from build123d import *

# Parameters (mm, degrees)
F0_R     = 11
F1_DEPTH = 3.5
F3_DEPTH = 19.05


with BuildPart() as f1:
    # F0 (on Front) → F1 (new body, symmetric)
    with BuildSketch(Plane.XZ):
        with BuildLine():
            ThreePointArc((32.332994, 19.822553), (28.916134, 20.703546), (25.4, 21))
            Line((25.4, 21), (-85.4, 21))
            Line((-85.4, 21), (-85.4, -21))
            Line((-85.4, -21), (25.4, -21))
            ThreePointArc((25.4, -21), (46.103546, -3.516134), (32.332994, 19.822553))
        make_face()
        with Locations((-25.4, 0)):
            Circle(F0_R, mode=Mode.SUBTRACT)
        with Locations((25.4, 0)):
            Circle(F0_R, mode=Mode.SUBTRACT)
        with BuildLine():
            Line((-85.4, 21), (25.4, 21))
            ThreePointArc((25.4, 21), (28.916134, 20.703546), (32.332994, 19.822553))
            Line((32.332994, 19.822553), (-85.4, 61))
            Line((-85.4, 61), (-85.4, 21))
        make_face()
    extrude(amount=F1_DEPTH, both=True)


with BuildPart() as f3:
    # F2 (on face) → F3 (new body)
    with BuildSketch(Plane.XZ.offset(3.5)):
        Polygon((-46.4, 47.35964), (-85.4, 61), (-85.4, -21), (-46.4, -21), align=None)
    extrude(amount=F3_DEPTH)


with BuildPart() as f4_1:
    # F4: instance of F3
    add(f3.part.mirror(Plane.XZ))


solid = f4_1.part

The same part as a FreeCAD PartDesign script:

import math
import FreeCAD as App
import Part
import Sketcher
Q = App.Units.Quantity


def add_polygon(sketch, points):
    """Adds a closed chain of lines whose ends are joined by coincident constraints."""
    first, n = sketch.GeometryCount, len(points)
    for a, b in zip(points, points[1:] + points[:1]):
        sketch.addGeometry(Part.LineSegment(App.Vector(*a, 0), App.Vector(*b, 0)), False)
    for i in range(n):
        sketch.addConstraint(Sketcher.Constraint("Coincident", first + i, 2, first + (i + 1) % n, 1))

doc = App.newDocument("Part")
params = doc.addObject("Spreadsheet::Sheet", "Params")
for row, (alias, value) in enumerate([
    ("sketch1_diameter", "22 mm"),
    ("sketch1_radius", "21 mm"),
    ("sketch1_height", "82 mm"),
    ("sketch1_width", "110.8 mm"),
    ("pad1_length", "7 mm"),
    ("sketch2_width", "39 mm"),
    ("sketch2_height", "82 mm"),
    ("pad2_length", "19.05 mm"),
], start=1):
    params.set(f"A{row}", alias)
    params.set(f"B{row}", "=" + value)
    params.setAlias(f"B{row}", alias)

body = doc.addObject("PartDesign::Body", "Body")

sketch1 = body.newObject("Sketcher::SketchObject", "Sketch")
sketch1.AttachmentSupport = (doc.getObject("XZ_Plane"), [""])
sketch1.MapMode = "FlatFace"
sketch1.addGeometry([
    Part.ArcOfCircle(Part.Circle(App.Vector(25, 0, 0), App.Vector(0, 0, 1), 21), math.radians(-90), math.radians(71)),
    Part.LineSegment(App.Vector(32, 20, 0), App.Vector(-85, 61, 0)),
    Part.LineSegment(App.Vector(-85, 61, 0), App.Vector(-85, -21, 0)),
    Part.LineSegment(App.Vector(-85, -21, 0), App.Vector(25, -21, 0)),
    Part.Circle(App.Vector(-25, 0, 0), App.Vector(0, 0, 1), 11),
    Part.Circle(App.Vector(25, 0, 0), App.Vector(0, 0, 1), 11),
], False)
sketch1.addConstraint([
    Sketcher.Constraint("Tangent", 0, 2, 1, 1),
    Sketcher.Constraint("Coincident", 1, 2, 2, 1),
    Sketcher.Constraint("Coincident", 2, 2, 3, 1),
    Sketcher.Constraint("Tangent", 3, 2, 0, 1),
    Sketcher.Constraint("Vertical", 2),
    Sketcher.Constraint("Horizontal", 3),
    Sketcher.Constraint("Coincident", 5, 3, 0, 3),
    Sketcher.Constraint("Equal", 4, 5),
    Sketcher.Constraint("Symmetric", 0, 3, 4, 3, -1, 1),
    Sketcher.Constraint("PointOnObject", 0, 3, -1),
    Sketcher.Constraint("Diameter", 4, Q("22 mm")),
    Sketcher.Constraint("Radius", 0, Q("21 mm")),
    Sketcher.Constraint("DistanceY", 2, 2, 2, 1, Q("82 mm")),
    Sketcher.Constraint("DistanceX", 3, 1, 3, 2, Q("110.8 mm")),
    Sketcher.Constraint("DistanceX", 1, 2, 4, 3, Q("60 mm")),
])
sketch1.setExpression("Constraints[10]", "Params.sketch1_diameter")
sketch1.setExpression("Constraints[11]", "Params.sketch1_radius")
sketch1.setExpression("Constraints[12]", "Params.sketch1_height")
sketch1.setExpression("Constraints[13]", "Params.sketch1_width")
pad1 = body.newObject("PartDesign::Pad", "Pad")
pad1.Profile = sketch1
pad1.setExpression("Length", "Params.pad1_length")
pad1.Midplane = True
body2 = doc.addObject("PartDesign::Body", "Body001")

sketch2 = body2.newObject("Sketcher::SketchObject", "Sketch001")
sketch2.AttachmentSupport = (doc.getObject("XZ_Plane001"), [""])
sketch2.MapMode = "FlatFace"
sketch2.AttachmentOffset = App.Placement(App.Vector(0, 0, 3.5), App.Rotation())
add_polygon(sketch2, [(-46, 47), (-85, 61), (-85, -21), (-46, -21)])
sketch2.addConstraint([
    Sketcher.Constraint("Vertical", 1),
    Sketcher.Constraint("Horizontal", 2),
    Sketcher.Constraint("Vertical", 3),
    Sketcher.Constraint("DistanceX", 2, 1, 2, 2, Q("39 mm")),
    Sketcher.Constraint("DistanceY", 1, 2, 1, 1, Q("82 mm")),
    Sketcher.Constraint("DistanceY", -1, 1, 0, 2, Q("61 mm")),
    Sketcher.Constraint("DistanceX", 0, 2, -1, 1, Q("85.4 mm")),
    Sketcher.Constraint("DistanceY", 3, 1, 3, 2, Q("68.35964 mm")),
])
sketch2.setExpression("Constraints[7]", "Params.sketch2_width")
sketch2.setExpression("Constraints[8]", "Params.sketch2_height")
pad2 = body2.newObject("PartDesign::Pad", "Pad001")
pad2.Profile = sketch2
pad2.setExpression("Length", "Params.pad2_length")
body3 = doc.addObject("PartDesign::Body", "Body002")
doc.recompute()

mirroring = doc.addObject("Part::Mirroring", "Mirroring")
mirroring.Source = body2
mirroring.Base = App.Vector(0, 0, 0)
mirroring.Normal = App.Vector(0, -1, 0)
body3.BaseFeature = mirroring
doc.recompute()
body.Visibility = False
body2.Visibility = False
mirroring.Visibility = False

doc.recompute()
